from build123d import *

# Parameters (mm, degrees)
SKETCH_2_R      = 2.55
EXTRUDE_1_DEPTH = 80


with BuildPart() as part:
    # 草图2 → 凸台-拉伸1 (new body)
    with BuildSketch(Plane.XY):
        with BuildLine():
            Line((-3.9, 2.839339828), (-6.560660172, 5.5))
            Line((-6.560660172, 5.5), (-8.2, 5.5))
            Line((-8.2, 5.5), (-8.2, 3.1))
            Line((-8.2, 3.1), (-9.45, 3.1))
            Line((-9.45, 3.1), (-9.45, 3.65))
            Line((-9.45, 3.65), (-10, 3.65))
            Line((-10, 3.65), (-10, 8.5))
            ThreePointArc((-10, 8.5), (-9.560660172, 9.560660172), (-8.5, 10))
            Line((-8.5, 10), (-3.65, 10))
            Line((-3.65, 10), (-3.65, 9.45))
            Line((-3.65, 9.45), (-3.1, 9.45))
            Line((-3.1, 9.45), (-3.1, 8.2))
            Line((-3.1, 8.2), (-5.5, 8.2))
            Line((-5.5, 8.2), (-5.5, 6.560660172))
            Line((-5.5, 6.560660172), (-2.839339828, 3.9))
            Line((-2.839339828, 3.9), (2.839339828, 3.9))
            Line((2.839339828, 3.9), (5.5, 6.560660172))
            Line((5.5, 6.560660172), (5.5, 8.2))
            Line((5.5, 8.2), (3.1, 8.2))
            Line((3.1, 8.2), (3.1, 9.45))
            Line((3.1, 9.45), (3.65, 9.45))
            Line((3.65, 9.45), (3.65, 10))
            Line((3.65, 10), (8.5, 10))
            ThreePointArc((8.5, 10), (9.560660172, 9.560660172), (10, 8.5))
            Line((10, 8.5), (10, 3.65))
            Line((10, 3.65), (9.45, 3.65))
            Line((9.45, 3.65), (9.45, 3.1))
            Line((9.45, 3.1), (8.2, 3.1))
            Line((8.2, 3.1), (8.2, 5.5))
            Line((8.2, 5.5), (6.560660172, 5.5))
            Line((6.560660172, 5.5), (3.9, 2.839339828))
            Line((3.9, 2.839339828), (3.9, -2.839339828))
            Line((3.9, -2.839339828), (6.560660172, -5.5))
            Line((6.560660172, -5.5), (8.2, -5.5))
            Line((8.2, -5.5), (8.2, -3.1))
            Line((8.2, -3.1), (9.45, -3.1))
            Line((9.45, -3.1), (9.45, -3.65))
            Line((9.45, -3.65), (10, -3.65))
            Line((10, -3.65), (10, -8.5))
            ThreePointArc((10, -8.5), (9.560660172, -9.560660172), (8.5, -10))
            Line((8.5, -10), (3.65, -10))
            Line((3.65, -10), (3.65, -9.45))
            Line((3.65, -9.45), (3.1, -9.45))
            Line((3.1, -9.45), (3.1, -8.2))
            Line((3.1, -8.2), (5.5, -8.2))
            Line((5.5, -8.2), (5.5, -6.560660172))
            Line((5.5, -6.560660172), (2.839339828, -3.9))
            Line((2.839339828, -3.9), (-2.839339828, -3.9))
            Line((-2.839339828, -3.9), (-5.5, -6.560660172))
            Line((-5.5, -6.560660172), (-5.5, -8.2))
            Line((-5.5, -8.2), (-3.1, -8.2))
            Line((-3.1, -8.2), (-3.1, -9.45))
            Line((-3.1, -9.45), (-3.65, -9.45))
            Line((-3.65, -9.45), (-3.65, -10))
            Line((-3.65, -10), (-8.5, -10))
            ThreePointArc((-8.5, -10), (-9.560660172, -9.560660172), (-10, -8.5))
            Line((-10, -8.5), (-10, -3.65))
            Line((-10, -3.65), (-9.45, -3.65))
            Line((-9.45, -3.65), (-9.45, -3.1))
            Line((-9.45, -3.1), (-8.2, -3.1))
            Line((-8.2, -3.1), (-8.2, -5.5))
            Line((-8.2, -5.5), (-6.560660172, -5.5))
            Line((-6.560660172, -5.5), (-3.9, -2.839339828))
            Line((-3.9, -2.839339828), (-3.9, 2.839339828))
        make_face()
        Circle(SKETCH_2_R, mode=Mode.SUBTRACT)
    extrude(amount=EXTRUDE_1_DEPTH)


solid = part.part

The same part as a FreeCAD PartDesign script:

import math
import FreeCAD as App
import Part
import Sketcher
Q = App.Units.Quantity

doc = App.newDocument("Part")
body = doc.addObject("PartDesign::Body", "Body")

# Sketch on XY plane
sketch1 = body.newObject("Sketcher::SketchObject", "Sketch")
sketch1.AttachmentSupport = (doc.getObject("XY_Plane"), [""])
sketch1.MapMode = "FlatFace"
sketch1.addGeometry(Part.LineSegment(App.Vector(-6.6, 5.5, 0), App.Vector(-3.9, 2.8, 0)), False)
sketch1.addGeometry(Part.LineSegment(App.Vector(-3.9, 2.8, 0), App.Vector(-3.9, -2.8, 0)), False)
sketch1.addGeometry(Part.LineSegment(App.Vector(-3.9, -2.8, 0), App.Vector(-6.6, -5.5, 0)), False)
sketch1.addGeometry(Part.LineSegment(App.Vector(-6.6, -5.5, 0), App.Vector(-8.2, -5.5, 0)), False)
sketch1.addGeometry(Part.LineSegment(App.Vector(-8.2, -5.5, 0), App.Vector(-8.2, -3.1, 0)), False)
sketch1.addGeometry(Part.LineSegment(App.Vector(-8.2, -3.1, 0), App.Vector(-9.4, -3.1, 0)), False)
sketch1.addGeometry(Part.LineSegment(App.Vector(-9.4, -3.1, 0), App.Vector(-9.4, -3.6, 0)), False)
sketch1.addGeometry(Part.LineSegment(App.Vector(-9.4, -3.6, 0), App.Vector(-10, -3.6, 0)), False)
sketch1.addGeometry(Part.LineSegment(App.Vector(-10, -3.6, 0), App.Vector(-10, -8.5, 0)), False)
sketch1.addGeometry(Part.ArcOfCircle(Part.Circle(App.Vector(-8.5, -8.5, 0), App.Vector(0, 0, 1), 1.5), math.radians(180), math.radians(270)), False)
sketch1.addGeometry(Part.LineSegment(App.Vector(-8.5, -10, 0), App.Vector(-3.6, -10, 0)), False)
sketch1.addGeometry(Part.LineSegment(App.Vector(-3.6, -10, 0), App.Vector(-3.6, -9.4, 0)), False)
sketch1.addGeometry(Part.LineSegment(App.Vector(-3.6, -9.4, 0), App.Vector(-3.1, -9.4, 0)), False)
sketch1.addGeometry(Part.LineSegment(App.Vector(-3.1, -9.4, 0), App.Vector(-3.1, -8.2, 0)), False)
sketch1.addGeometry(Part.LineSegment(App.Vector(-3.1, -8.2, 0), App.Vector(-5.5, -8.2, 0)), False)
sketch1.addGeometry(Part.LineSegment(App.Vector(-5.5, -8.2, 0), App.Vector(-5.5, -6.6, 0)), False)
sketch1.addGeometry(Part.LineSegment(App.Vector(-5.5, -6.6, 0), App.Vector(-2.8, -3.9, 0)), False)
sketch1.addGeometry(Part.LineSegment(App.Vector(-2.8, -3.9, 0), App.Vector(2.8, -3.9, 0)), False)
sketch1.addGeometry(Part.LineSegment(App.Vector(2.8, -3.9, 0), App.Vector(5.5, -6.6, 0)), False)
sketch1.addGeometry(Part.LineSegment(App.Vector(5.5, -6.6, 0), App.Vector(5.5, -8.2, 0)), False)
sketch1.addGeometry(Part.LineSegment(App.Vector(5.5, -8.2, 0), App.Vector(3.1, -8.2, 0)), False)
sketch1.addGeometry(Part.LineSegment(App.Vector(3.1, -8.2, 0), App.Vector(3.1, -9.4, 0)), False)
sketch1.addGeometry(Part.LineSegment(App.Vector(3.1, -9.4, 0), App.Vector(3.6, -9.4, 0)), False)
sketch1.addGeometry(Part.LineSegment(App.Vector(3.6, -9.4, 0), App.Vector(3.6, -10, 0)), False)
sketch1.addGeometry(Part.LineSegment(App.Vector(3.6, -10, 0), App.Vector(8.5, -10, 0)), False)
sketch1.addGeometry(Part.ArcOfCircle(Part.Circle(App.Vector(8.5, -8.5, 0), App.Vector(0, 0, 1), 1.5), math.radians(-90), math.radians(0)), False)
sketch1.addGeometry(Part.LineSegment(App.Vector(10, -8.5, 0), App.Vector(10, -3.6, 0)), False)
sketch1.addGeometry(Part.LineSegment(App.Vector(10, -3.6, 0), App.Vector(9.4, -3.6, 0)), False)
sketch1.addGeometry(Part.LineSegment(App.Vector(9.4, -3.6, 0), App.Vector(9.4, -3.1, 0)), False)
sketch1.addGeometry(Part.LineSegment(App.Vector(9.4, -3.1, 0), App.Vector(8.2, -3.1, 0)), False)
sketch1.addGeometry(Part.LineSegment(App.Vector(8.2, -3.1, 0), App.Vector(8.2, -5.5, 0)), False)
sketch1.addGeometry(Part.LineSegment(App.Vector(8.2, -5.5, 0), App.Vector(6.6, -5.5, 0)), False)
sketch1.addGeometry(Part.LineSegment(App.Vector(6.6, -5.5, 0), App.Vector(3.9, -2.8, 0)), False)
sketch1.addGeometry(Part.LineSegment(App.Vector(3.9, -2.8, 0), App.Vector(3.9, 2.8, 0)), False)
sketch1.addGeometry(Part.LineSegment(App.Vector(3.9, 2.8, 0), App.Vector(6.6, 5.5, 0)), False)
sketch1.addGeometry(Part.LineSegment(App.Vector(6.6, 5.5, 0), App.Vector(8.2, 5.5, 0)), False)
sketch1.addGeometry(Part.LineSegment(App.Vector(8.2, 5.5, 0), App.Vector(8.2, 3.1, 0)), False)
sketch1.addGeometry(Part.LineSegment(App.Vector(8.2, 3.1, 0), App.Vector(9.4, 3.1, 0)), False)
sketch1.addGeometry(Part.LineSegment(App.Vector(9.4, 3.1, 0), App.Vector(9.4, 3.6, 0)), False)
sketch1.addGeometry(Part.LineSegment(App.Vector(9.4, 3.6, 0), App.Vector(10, 3.6, 0)), False)
sketch1.addGeometry(Part.LineSegment(App.Vector(10, 3.6, 0), App.Vector(10, 8.5, 0)), False)
sketch1.addGeometry(Part.ArcOfCircle(Part.Circle(App.Vector(8.5, 8.5, 0), App.Vector(0, 0, 1), 1.5), math.radians(0), math.radians(90)), False)
sketch1.addGeometry(Part.LineSegment(App.Vector(8.5, 10, 0), App.Vector(3.6, 10, 0)), False)
sketch1.addGeometry(Part.LineSegment(App.Vector(3.6, 10, 0), App.Vector(3.6, 9.4, 0)), False)
sketch1.addGeometry(Part.LineSegment(App.Vector(3.6, 9.4, 0), App.Vector(3.1, 9.4, 0)), False)
sketch1.addGeometry(Part.LineSegment(App.Vector(3.1, 9.4, 0), App.Vector(3.1, 8.2, 0)), False)
sketch1.addGeometry(Part.LineSegment(App.Vector(3.1, 8.2, 0), App.Vector(5.5, 8.2, 0)), False)
sketch1.addGeometry(Part.LineSegment(App.Vector(5.5, 8.2, 0), App.Vector(5.5, 6.6, 0)), False)
sketch1.addGeometry(Part.LineSegment(App.Vector(5.5, 6.6, 0), App.Vector(2.8, 3.9, 0)), False)
sketch1.addGeometry(Part.LineSegment(App.Vector(2.8, 3.9, 0), App.Vector(-2.8, 3.9, 0)), False)
sketch1.addGeometry(Part.LineSegment(App.Vector(-2.8, 3.9, 0), App.Vector(-5.5, 6.6, 0)), False)
sketch1.addGeometry(Part.LineSegment(App.Vector(-5.5, 6.6, 0), App.Vector(-5.5, 8.2, 0)), False)
sketch1.addGeometry(Part.LineSegment(App.Vector(-5.5, 8.2, 0), App.Vector(-3.1, 8.2, 0)), False)
sketch1.addGeometry(Part.LineSegment(App.Vector(-3.1, 8.2, 0), App.Vector(-3.1, 9.4, 0)), False)
sketch1.addGeometry(Part.LineSegment(App.Vector(-3.1, 9.4, 0), App.Vector(-3.6, 9.4, 0)), False)
sketch1.addGeometry(Part.LineSegment(App.Vector(-3.6, 9.4, 0), App.Vector(-3.6, 10, 0)), False)
sketch1.addGeometry(Part.LineSegment(App.Vector(-3.6, 10, 0), App.Vector(-8.5, 10, 0)), False)
sketch1.addGeometry(Part.ArcOfCircle(Part.Circle(App.Vector(-8.5, 8.5, 0), App.Vector(0, 0, 1), 1.5), math.radians(90), math.radians(180)), False)
sketch1.addGeometry(Part.LineSegment(App.Vector(-10, 8.5, 0), App.Vector(-10, 3.6, 0)), False)
sketch1.addGeometry(Part.LineSegment(App.Vector(-10, 3.6, 0), App.Vector(-9.4, 3.6, 0)), False)
sketch1.addGeometry(Part.LineSegment(App.Vector(-9.4, 3.6, 0), App.Vector(-9.4, 3.1, 0)), False)
sketch1.addGeometry(Part.LineSegment(App.Vector(-9.4, 3.1, 0), App.Vector(-8.2, 3.1, 0)), False)
sketch1.addGeometry(Part.LineSegment(App.Vector(-8.2, 3.1, 0), App.Vector(-8.2, 5.5, 0)), False)
sketch1.addGeometry(Part.LineSegment(App.Vector(-8.2, 5.5, 0), App.Vector(-6.6, 5.5, 0)), False)
sketch1.addGeometry(Part.Circle(App.Vector(0, 0, 0), App.Vector(0, 0, 1), 2.5), False)
sketch1.addConstraint(Sketcher.Constraint("Coincident", 0, 2, 1, 1))
sketch1.addConstraint(Sketcher.Constraint("Coincident", 1, 2, 2, 1))
sketch1.addConstraint(Sketcher.Constraint("Coincident", 2, 2, 3, 1))
sketch1.addConstraint(Sketcher.Constraint("Coincident", 3, 2, 4, 1))
sketch1.addConstraint(Sketcher.Constraint("Coincident", 4, 2, 5, 1))
sketch1.addConstraint(Sketcher.Constraint("Coincident", 5, 2, 6, 1))
sketch1.addConstraint(Sketcher.Constraint("Coincident", 6, 2, 7, 1))
sketch1.addConstraint(Sketcher.Constraint("Coincident", 7, 2, 8, 1))
sketch1.addConstraint(Sketcher.Constraint("Tangent", 8, 2, 9, 1))
sketch1.addConstraint(Sketcher.Constraint("Tangent", 9, 2, 10, 1))
sketch1.addConstraint(Sketcher.Constraint("Coincident", 10, 2, 11, 1))
sketch1.addConstraint(Sketcher.Constraint("Coincident", 11, 2, 12, 1))
sketch1.addConstraint(Sketcher.Constraint("Coincident", 12, 2, 13, 1))
sketch1.addConstraint(Sketcher.Constraint("Coincident", 13, 2, 14, 1))
sketch1.addConstraint(Sketcher.Constraint("Coincident", 14, 2, 15, 1))
sketch1.addConstraint(Sketcher.Constraint("Coincident", 15, 2, 16, 1))
sketch1.addConstraint(Sketcher.Constraint("Coincident", 16, 2, 17, 1))
sketch1.addConstraint(Sketcher.Constraint("Coincident", 17, 2, 18, 1))
sketch1.addConstraint(Sketcher.Constraint("Coincident", 18, 2, 19, 1))
sketch1.addConstraint(Sketcher.Constraint("Coincident", 19, 2, 20, 1))
sketch1.addConstraint(Sketcher.Constraint("Coincident", 20, 2, 21, 1))
sketch1.addConstraint(Sketcher.Constraint("Coincident", 21, 2, 22, 1))
sketch1.addConstraint(Sketcher.Constraint("Coincident", 22, 2, 23, 1))
sketch1.addConstraint(Sketcher.Constraint("Coincident", 23, 2, 24, 1))
sketch1.addConstraint(Sketcher.Constraint("Tangent", 24, 2, 25, 1))
sketch1.addConstraint(Sketcher.Constraint("Tangent", 25, 2, 26, 1))
sketch1.addConstraint(Sketcher.Constraint("Coincident", 26, 2, 27, 1))
sketch1.addConstraint(Sketcher.Constraint("Coincident", 27, 2, 28, 1))
sketch1.addConstraint(Sketcher.Constraint("Coincident", 28, 2, 29, 1))
sketch1.addConstraint(Sketcher.Constraint("Coincident", 29, 2, 30, 1))
sketch1.addConstraint(Sketcher.Constraint("Coincident", 30, 2, 31, 1))
sketch1.addConstraint(Sketcher.Constraint("Coincident", 31, 2, 32, 1))
sketch1.addConstraint(Sketcher.Constraint("Coincident", 32, 2, 33, 1))
sketch1.addConstraint(Sketcher.Constraint("Coincident", 33, 2, 34, 1))
sketch1.addConstraint(Sketcher.Constraint("Coincident", 34, 2, 35, 1))
sketch1.addConstraint(Sketcher.Constraint("Coincident", 35, 2, 36, 1))
sketch1.addConstraint(Sketcher.Constraint("Coincident", 36, 2, 37, 1))
sketch1.addConstraint(Sketcher.Constraint("Coincident", 37, 2, 38, 1))
sketch1.addConstraint(Sketcher.Constraint("Coincident", 38, 2, 39, 1))
sketch1.addConstraint(Sketcher.Constraint("Coincident", 39, 2, 40, 1))
sketch1.addConstraint(Sketcher.Constraint("Tangent", 40, 2, 41, 1))
sketch1.addConstraint(Sketcher.Constraint("Tangent", 41, 2, 42, 1))
sketch1.addConstraint(Sketcher.Constraint("Coincident", 42, 2, 43, 1))
sketch1.addConstraint(Sketcher.Constraint("Coincident", 43, 2, 44, 1))
sketch1.addConstraint(Sketcher.Constraint("Coincident", 44, 2, 45, 1))
sketch1.addConstraint(Sketcher.Constraint("Coincident", 45, 2, 46, 1))
sketch1.addConstraint(Sketcher.Constraint("Coincident", 46, 2, 47, 1))
sketch1.addConstraint(Sketcher.Constraint("Coincident", 47, 2, 48, 1))
sketch1.addConstraint(Sketcher.Constraint("Coincident", 48, 2, 49, 1))
sketch1.addConstraint(Sketcher.Constraint("Coincident", 49, 2, 50, 1))
sketch1.addConstraint(Sketcher.Constraint("Coincident", 50, 2, 51, 1))
sketch1.addConstraint(Sketcher.Constraint("Coincident", 51, 2, 52, 1))
sketch1.addConstraint(Sketcher.Constraint("Coincident", 52, 2, 53, 1))
sketch1.addConstraint(Sketcher.Constraint("Coincident", 53, 2, 54, 1))
sketch1.addConstraint(Sketcher.Constraint("Coincident", 54, 2, 55, 1))
sketch1.addConstraint(Sketcher.Constraint("Coincident", 55, 2, 56, 1))
sketch1.addConstraint(Sketcher.Constraint("Tangent", 56, 2, 57, 1))
sketch1.addConstraint(Sketcher.Constraint("Tangent", 57, 2, 58, 1))
sketch1.addConstraint(Sketcher.Constraint("Coincident", 58, 2, 59, 1))
sketch1.addConstraint(Sketcher.Constraint("Coincident", 59, 2, 60, 1))
sketch1.addConstraint(Sketcher.Constraint("Coincident", 60, 2, 61, 1))
sketch1.addConstraint(Sketcher.Constraint("Coincident", 61, 2, 62, 1))
sketch1.addConstraint(Sketcher.Constraint("Coincident", 62, 2, 63, 1))
sketch1.addConstraint(Sketcher.Constraint("Coincident", 63, 2, 0, 1))
sketch1.addConstraint(Sketcher.Constraint("Vertical", 1))
sketch1.addConstraint(Sketcher.Constraint("Horizontal", 3))
sketch1.addConstraint(Sketcher.Constraint("Vertical", 4))
sketch1.addConstraint(Sketcher.Constraint("Horizontal", 5))
sketch1.addConstraint(Sketcher.Constraint("Vertical", 6))
sketch1.addConstraint(Sketcher.Constraint("Horizontal", 7))
sketch1.addConstraint(Sketcher.Constraint("Vertical", 8))
sketch1.addConstraint(Sketcher.Constraint("Horizontal", 10))
sketch1.addConstraint(Sketcher.Constraint("Vertical", 11))
sketch1.addConstraint(Sketcher.Constraint("Horizontal", 12))
sketch1.addConstraint(Sketcher.Constraint("Vertical", 13))
sketch1.addConstraint(Sketcher.Constraint("Horizontal", 14))
sketch1.addConstraint(Sketcher.Constraint("Vertical", 15))
sketch1.addConstraint(Sketcher.Constraint("Horizontal", 17))
sketch1.addConstraint(Sketcher.Constraint("Vertical", 19))
sketch1.addConstraint(Sketcher.Constraint("Horizontal", 20))
sketch1.addConstraint(Sketcher.Constraint("Vertical", 21))
sketch1.addConstraint(Sketcher.Constraint("Horizontal", 22))
sketch1.addConstraint(Sketcher.Constraint("Vertical", 23))
sketch1.addConstraint(Sketcher.Constraint("Horizontal", 24))
sketch1.addConstraint(Sketcher.Constraint("Vertical", 26))
sketch1.addConstraint(Sketcher.Constraint("Horizontal", 27))
sketch1.addConstraint(Sketcher.Constraint("Vertical", 28))
sketch1.addConstraint(Sketcher.Constraint("Horizontal", 29))
sketch1.addConstraint(Sketcher.Constraint("Vertical", 30))
sketch1.addConstraint(Sketcher.Constraint("Horizontal", 31))
sketch1.addConstraint(Sketcher.Constraint("Vertical", 33))
sketch1.addConstraint(Sketcher.Constraint("Horizontal", 35))
sketch1.addConstraint(Sketcher.Constraint("Vertical", 36))
sketch1.addConstraint(Sketcher.Constraint("Horizontal", 37))
sketch1.addConstraint(Sketcher.Constraint("Vertical", 38))
sketch1.addConstraint(Sketcher.Constraint("Horizontal", 39))
sketch1.addConstraint(Sketcher.Constraint("Vertical", 40))
sketch1.addConstraint(Sketcher.Constraint("Horizontal", 42))
sketch1.addConstraint(Sketcher.Constraint("Vertical", 43))
sketch1.addConstraint(Sketcher.Constraint("Horizontal", 44))
sketch1.addConstraint(Sketcher.Constraint("Vertical", 45))
sketch1.addConstraint(Sketcher.Constraint("Horizontal", 46))
sketch1.addConstraint(Sketcher.Constraint("Vertical", 47))
sketch1.addConstraint(Sketcher.Constraint("Horizontal", 49))
sketch1.addConstraint(Sketcher.Constraint("Vertical", 51))
sketch1.addConstraint(Sketcher.Constraint("Horizontal", 52))
sketch1.addConstraint(Sketcher.Constraint("Vertical", 53))
sketch1.addConstraint(Sketcher.Constraint("Horizontal", 54))
sketch1.addConstraint(Sketcher.Constraint("Vertical", 55))
sketch1.addConstraint(Sketcher.Constraint("Horizontal", 56))
sketch1.addConstraint(Sketcher.Constraint("Vertical", 58))
sketch1.addConstraint(Sketcher.Constraint("Horizontal", 59))
sketch1.addConstraint(Sketcher.Constraint("Vertical", 60))
sketch1.addConstraint(Sketcher.Constraint("Horizontal", 61))
sketch1.addConstraint(Sketcher.Constraint("Vertical", 62))
sketch1.addConstraint(Sketcher.Constraint("Horizontal", 63))
sketch1.addConstraint(Sketcher.Constraint("Coincident", 64, 3, -1, 1))
sketch1.addConstraint(Sketcher.Constraint("Equal", 9, 25))
sketch1.addConstraint(Sketcher.Constraint("Equal", 25, 41))
sketch1.addConstraint(Sketcher.Constraint("Equal", 41, 57))
sketch1.addConstraint(Sketcher.Constraint("Symmetric", 9, 3, 41, 3, -1, 1))
sketch1.addConstraint(Sketcher.Constraint("Symmetric", 25, 3, 57, 3, -1, 1))
sketch1.addConstraint(Sketcher.Constraint("Symmetric", 0, 2, 32, 2, -1, 1))
sketch1.addConstraint(Sketcher.Constraint("Symmetric", 2, 2, 34, 2, -1, 1))
sketch1.addConstraint(Sketcher.Constraint("Symmetric", 4, 2, 36, 2, -1, 1))
sketch1.addConstraint(Sketcher.Constraint("Symmetric", 6, 2, 38, 2, -1, 1))
sketch1.addConstraint(Sketcher.Constraint("Symmetric", 11, 2, 43, 2, -1, 1))
sketch1.addConstraint(Sketcher.Constraint("Symmetric", 13, 2, 45, 2, -1, 1))
sketch1.addConstraint(Sketcher.Constraint("Symmetric", 15, 2, 47, 2, -1, 1))
sketch1.addConstraint(Sketcher.Constraint("Symmetric", 16, 2, 48, 2, -1, 1))
sketch1.addConstraint(Sketcher.Constraint("Symmetric", 18, 2, 50, 2, -1, 1))
sketch1.addConstraint(Sketcher.Constraint("Symmetric", 20, 2, 52, 2, -1, 1))
sketch1.addConstraint(Sketcher.Constraint("Symmetric", 22, 2, 54, 2, -1, 1))
sketch1.addConstraint(Sketcher.Constraint("Symmetric", 27, 2, 59, 2, -1, 1))
sketch1.addConstraint(Sketcher.Constraint("Symmetric", 29, 2, 61, 2, -1, 1))
sketch1.addConstraint(Sketcher.Constraint("Symmetric", 31, 2, 63, 2, -1, 1))
sketch1.addConstraint(Sketcher.Constraint("Symmetric", 9, 3, 25, 3, -2))
sketch1.addConstraint(Sketcher.Constraint("Symmetric", 15, 2, 18, 2, -2))
sketch1.addConstraint(Sketcher.Constraint("Symmetric", 13, 2, 20, 2, -2))
sketch1.addConstraint(Sketcher.Constraint("Symmetric", 11, 2, 22, 2, -2))
sketch1.addConstraint(Sketcher.Constraint("Symmetric", 6, 2, 27, 2, -2))
sketch1.addConstraint(Sketcher.Constraint("Symmetric", 4, 2, 29, 2, -2))
sketch1.addConstraint(Sketcher.Constraint("Symmetric", 2, 2, 31, 2, -2))
sketch1.addConstraint(Sketcher.Constraint("Perpendicular", 0, 2))
sketch1.addConstraint(Sketcher.Constraint("Parallel", 2, 16))
sketch1.addConstraint(Sketcher.Constraint("Perpendicular", 16, 18))
sketch1.addConstraint(Sketcher.Constraint("Perpendicular", 32, 34))
sketch1.addConstraint(Sketcher.Constraint("Perpendicular", 48, 50))
sketch1.addConstraint(Sketcher.Constraint("Horizontal", 1, 2, 32, 2))
sketch1.addConstraint(Sketcher.Constraint("Equal", 7, 12))
sketch1.addConstraint(Sketcher.Constraint("Equal", 49, 1))
sketch1.addConstraint(Sketcher.Constraint("Equal", 52, 4))
sketch1.addConstraint(Sketcher.Constraint("Equal", 59, 6))
sketch1.addConstraint(Sketcher.Constraint("Equal", 56, 8))
sketch1.addConstraint(Sketcher.Constraint("Equal", 6, 11))
sketch1.addConstraint(Sketcher.Constraint("Equal", 61, 13))
sketch1.addConstraint(Sketcher.Constraint("Equal", 63, 15))
sketch1.addConstraint(Sketcher.Constraint("Equal", 2, 16))
sketch1.addConstraint(Sketcher.Constraint("Diameter", 64, Q("5.1 mm")))
sketch1.addConstraint(Sketcher.Constraint("Radius", 9, Q("1.5 mm")))
sketch1.addConstraint(Sketcher.Constraint("DistanceX", 14, 2, 14, 1, Q("2.4 mm")))
sketch1.addConstraint(Sketcher.Constraint("DistanceX", 7, 2, -1, 1, Q("10 mm")))
sketch1.addConstraint(Sketcher.Constraint("DistanceX", 5, 2, 5, 1, Q("1.25 mm")))
sketch1.addConstraint(Sketcher.Constraint("DistanceX", 7, 2, 7, 1, Q("0.55 mm")))
sketch1.addConstraint(Sketcher.Constraint("DistanceX", 10, 1, 10, 2, Q("4.85 mm")))
sketch1.addConstraint(Sketcher.Constraint("DistanceX", 0, 2, -1, 1, Q("3.9 mm")))
sketch1.addConstraint(Sketcher.Constraint("DistanceX", 3, 2, 3, 1, Q("1.63934 mm")))
pad1 = body.newObject("PartDesign::Pad", "Pad")
pad1.Profile = sketch1
pad1.Length = 80

doc.recompute()
